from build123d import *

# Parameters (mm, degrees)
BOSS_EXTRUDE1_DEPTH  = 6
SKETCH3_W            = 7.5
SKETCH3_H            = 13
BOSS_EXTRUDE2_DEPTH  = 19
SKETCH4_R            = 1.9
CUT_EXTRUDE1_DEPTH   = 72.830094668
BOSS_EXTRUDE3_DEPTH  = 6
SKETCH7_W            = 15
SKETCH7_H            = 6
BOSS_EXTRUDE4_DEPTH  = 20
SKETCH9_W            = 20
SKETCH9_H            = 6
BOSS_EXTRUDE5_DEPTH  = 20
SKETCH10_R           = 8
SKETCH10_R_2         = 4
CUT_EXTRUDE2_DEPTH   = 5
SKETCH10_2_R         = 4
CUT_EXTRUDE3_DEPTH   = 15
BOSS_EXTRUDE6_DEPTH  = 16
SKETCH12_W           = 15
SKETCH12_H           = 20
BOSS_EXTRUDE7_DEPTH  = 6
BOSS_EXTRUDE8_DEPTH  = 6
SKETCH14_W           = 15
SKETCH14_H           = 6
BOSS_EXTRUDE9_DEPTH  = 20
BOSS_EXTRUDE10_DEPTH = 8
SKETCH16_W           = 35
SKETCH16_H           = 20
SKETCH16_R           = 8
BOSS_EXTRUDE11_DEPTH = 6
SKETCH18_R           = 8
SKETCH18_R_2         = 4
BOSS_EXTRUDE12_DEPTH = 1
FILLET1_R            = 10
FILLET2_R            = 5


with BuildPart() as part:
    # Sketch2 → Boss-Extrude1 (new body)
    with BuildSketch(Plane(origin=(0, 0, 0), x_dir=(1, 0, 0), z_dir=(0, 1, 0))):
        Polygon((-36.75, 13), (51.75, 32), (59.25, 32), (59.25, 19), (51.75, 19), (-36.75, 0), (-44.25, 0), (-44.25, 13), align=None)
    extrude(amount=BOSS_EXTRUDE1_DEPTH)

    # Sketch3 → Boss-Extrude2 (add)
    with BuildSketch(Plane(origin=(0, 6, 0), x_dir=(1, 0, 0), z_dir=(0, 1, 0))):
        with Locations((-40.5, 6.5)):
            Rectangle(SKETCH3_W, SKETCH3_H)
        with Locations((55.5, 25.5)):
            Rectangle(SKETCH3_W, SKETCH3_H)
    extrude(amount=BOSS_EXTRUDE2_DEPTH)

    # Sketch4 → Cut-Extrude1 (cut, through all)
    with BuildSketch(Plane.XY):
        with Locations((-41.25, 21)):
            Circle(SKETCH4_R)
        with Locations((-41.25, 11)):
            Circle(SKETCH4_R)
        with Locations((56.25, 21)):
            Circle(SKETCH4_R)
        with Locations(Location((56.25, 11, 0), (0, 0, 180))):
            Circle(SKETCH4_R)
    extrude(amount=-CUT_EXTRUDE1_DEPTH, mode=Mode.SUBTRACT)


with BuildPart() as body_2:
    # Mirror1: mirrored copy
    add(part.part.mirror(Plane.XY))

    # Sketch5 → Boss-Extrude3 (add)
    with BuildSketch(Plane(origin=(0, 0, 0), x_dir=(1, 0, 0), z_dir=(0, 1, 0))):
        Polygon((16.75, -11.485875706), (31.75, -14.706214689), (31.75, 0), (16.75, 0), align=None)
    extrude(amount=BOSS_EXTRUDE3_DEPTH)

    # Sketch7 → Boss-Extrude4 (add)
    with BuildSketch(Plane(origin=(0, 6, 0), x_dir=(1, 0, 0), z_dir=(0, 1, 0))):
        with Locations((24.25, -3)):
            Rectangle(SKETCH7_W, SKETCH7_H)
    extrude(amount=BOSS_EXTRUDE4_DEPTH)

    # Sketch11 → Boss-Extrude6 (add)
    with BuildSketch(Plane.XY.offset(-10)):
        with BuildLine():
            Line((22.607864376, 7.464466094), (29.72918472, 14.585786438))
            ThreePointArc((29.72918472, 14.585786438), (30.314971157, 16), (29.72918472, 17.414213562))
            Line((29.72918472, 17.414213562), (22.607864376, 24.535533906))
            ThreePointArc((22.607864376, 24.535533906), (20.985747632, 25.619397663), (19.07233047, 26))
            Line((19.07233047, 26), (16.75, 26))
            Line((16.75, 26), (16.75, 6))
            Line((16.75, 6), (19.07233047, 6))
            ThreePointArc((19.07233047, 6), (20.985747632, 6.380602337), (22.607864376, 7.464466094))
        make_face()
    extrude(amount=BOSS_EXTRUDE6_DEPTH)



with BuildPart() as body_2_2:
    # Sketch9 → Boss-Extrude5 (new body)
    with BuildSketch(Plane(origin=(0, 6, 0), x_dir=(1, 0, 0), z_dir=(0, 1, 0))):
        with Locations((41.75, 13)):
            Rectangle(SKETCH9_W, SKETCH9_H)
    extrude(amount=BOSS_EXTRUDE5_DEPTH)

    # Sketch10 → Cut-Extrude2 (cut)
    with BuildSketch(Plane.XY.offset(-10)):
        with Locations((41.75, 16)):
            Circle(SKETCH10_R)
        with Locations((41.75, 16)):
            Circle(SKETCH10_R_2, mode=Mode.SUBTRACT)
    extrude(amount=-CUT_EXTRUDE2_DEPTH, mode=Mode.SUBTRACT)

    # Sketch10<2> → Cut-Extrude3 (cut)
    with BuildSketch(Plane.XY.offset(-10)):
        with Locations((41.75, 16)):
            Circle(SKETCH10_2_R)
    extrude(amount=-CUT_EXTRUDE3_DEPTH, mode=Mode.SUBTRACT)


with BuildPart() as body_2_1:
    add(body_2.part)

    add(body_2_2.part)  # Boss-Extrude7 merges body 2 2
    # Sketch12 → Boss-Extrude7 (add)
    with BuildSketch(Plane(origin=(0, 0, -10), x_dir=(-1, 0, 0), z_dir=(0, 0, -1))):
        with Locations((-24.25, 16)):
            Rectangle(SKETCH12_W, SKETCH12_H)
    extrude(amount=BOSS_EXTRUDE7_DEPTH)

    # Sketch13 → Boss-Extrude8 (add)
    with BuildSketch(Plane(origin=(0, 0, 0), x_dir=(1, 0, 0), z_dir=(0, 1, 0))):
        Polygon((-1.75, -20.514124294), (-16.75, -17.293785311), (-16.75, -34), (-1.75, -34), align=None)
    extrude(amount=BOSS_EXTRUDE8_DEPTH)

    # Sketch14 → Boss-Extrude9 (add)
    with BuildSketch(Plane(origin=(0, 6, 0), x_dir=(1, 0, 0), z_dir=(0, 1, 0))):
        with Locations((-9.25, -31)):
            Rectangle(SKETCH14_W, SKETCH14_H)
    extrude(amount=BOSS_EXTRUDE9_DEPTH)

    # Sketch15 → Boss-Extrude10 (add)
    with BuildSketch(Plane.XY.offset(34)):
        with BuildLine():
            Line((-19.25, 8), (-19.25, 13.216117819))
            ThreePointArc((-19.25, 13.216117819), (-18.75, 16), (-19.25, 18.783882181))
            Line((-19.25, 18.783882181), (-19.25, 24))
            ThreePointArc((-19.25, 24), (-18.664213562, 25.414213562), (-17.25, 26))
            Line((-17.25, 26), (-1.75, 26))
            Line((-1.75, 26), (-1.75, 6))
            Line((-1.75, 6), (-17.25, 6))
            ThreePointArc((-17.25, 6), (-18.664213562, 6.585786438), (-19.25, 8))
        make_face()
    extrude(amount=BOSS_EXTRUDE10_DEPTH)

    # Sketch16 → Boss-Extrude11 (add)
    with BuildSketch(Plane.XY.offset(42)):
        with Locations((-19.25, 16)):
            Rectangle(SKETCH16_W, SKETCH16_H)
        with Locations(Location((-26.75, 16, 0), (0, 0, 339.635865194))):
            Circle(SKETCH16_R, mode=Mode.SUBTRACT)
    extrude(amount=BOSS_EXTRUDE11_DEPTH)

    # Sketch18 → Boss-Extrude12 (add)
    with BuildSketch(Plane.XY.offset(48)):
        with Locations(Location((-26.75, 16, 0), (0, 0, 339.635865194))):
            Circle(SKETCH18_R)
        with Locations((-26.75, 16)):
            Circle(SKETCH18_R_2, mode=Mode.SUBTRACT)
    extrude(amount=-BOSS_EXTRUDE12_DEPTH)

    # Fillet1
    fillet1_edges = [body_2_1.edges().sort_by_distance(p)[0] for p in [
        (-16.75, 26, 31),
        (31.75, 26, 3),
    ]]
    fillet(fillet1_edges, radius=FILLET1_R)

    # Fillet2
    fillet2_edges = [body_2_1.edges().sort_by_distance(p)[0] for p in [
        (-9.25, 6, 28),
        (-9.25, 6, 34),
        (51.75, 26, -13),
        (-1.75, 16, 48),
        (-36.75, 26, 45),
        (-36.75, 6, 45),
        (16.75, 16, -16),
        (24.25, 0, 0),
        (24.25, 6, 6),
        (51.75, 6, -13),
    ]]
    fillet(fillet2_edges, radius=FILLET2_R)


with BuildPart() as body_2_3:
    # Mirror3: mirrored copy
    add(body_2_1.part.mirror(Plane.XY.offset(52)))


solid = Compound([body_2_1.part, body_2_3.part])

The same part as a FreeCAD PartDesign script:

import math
import FreeCAD as App
import Part
import Sketcher
Q = App.Units.Quantity


def edges_at(feature, points):
    """Names of the edges that pass closest to the given points."""
    edges = feature.Shape.Edges
    near = lambda p: min(range(len(edges)), key=lambda i: edges[i].distToShape(Part.Vertex(*p))[0])
    return sorted({f"Edge{near(p) + 1}" for p in points})

doc = App.newDocument("Part")
body = doc.addObject("PartDesign::Body", "Body")

# Sketch on XZ plane
sketch1 = body.newObject("Sketcher::SketchObject", "Sketch")
sketch1.AttachmentSupport = (doc.getObject("XZ_Plane"), [""])
sketch1.MapMode = "FlatFace"
sketch1.addGeometry(Part.LineSegment(App.Vector(52, -32, 0), App.Vector(-37, -13, 0)), False)
sketch1.addGeometry(Part.LineSegment(App.Vector(-37, -13, 0), App.Vector(-44, -13, 0)), False)
sketch1.addGeometry(Part.LineSegment(App.Vector(-44, -13, 0), App.Vector(-44, 0, 0)), False)
sketch1.addGeometry(Part.LineSegment(App.Vector(-44, 0, 0), App.Vector(-37, 0, 0)), False)
sketch1.addGeometry(Part.LineSegment(App.Vector(-37, 0, 0), App.Vector(52, -19, 0)), False)
sketch1.addGeometry(Part.LineSegment(App.Vector(52, -19, 0), App.Vector(59, -19, 0)), False)
sketch1.addGeometry(Part.LineSegment(App.Vector(59, -19, 0), App.Vector(59, -32, 0)), False)
sketch1.addGeometry(Part.LineSegment(App.Vector(59, -32, 0), App.Vector(52, -32, 0)), False)
sketch1.addConstraint(Sketcher.Constraint("Coincident", 0, 2, 1, 1))
sketch1.addConstraint(Sketcher.Constraint("Coincident", 1, 2, 2, 1))
sketch1.addConstraint(Sketcher.Constraint("Coincident", 2, 2, 3, 1))
sketch1.addConstraint(Sketcher.Constraint("Coincident", 3, 2, 4, 1))
sketch1.addConstraint(Sketcher.Constraint("Coincident", 4, 2, 5, 1))
sketch1.addConstraint(Sketcher.Constraint("Coincident", 5, 2, 6, 1))
sketch1.addConstraint(Sketcher.Constraint("Coincident", 6, 2, 7, 1))
sketch1.addConstraint(Sketcher.Constraint("Coincident", 7, 2, 0, 1))
sketch1.addConstraint(Sketcher.Constraint("Horizontal", 1))
sketch1.addConstraint(Sketcher.Constraint("Vertical", 2))
sketch1.addConstraint(Sketcher.Constraint("Horizontal", 3))
sketch1.addConstraint(Sketcher.Constraint("Horizontal", 5))
sketch1.addConstraint(Sketcher.Constraint("Vertical", 6))
sketch1.addConstraint(Sketcher.Constraint("Horizontal", 7))
sketch1.addConstraint(Sketcher.Constraint("PointOnObject", 2, 2, -1))
sketch1.addConstraint(Sketcher.Constraint("Parallel", 0, 4))
sketch1.addConstraint(Sketcher.Constraint("Vertical", 0, 2, 3, 2))
sketch1.addConstraint(Sketcher.Constraint("Vertical", 4, 2, 7, 2))
sketch1.addConstraint(Sketcher.Constraint("Equal", 3, 5))
sketch1.addConstraint(Sketcher.Constraint("DistanceY", 2, 1, 2, 2, Q("13 mm")))
sketch1.addConstraint(Sketcher.Constraint("DistanceX", 1, 2, 1, 1, Q("7.5 mm")))
sketch1.addConstraint(Sketcher.Constraint("DistanceY", 4, 2, -1, 1, Q("19 mm")))
sketch1.addConstraint(Sketcher.Constraint("DistanceX", 1, 2, 4, 2, Q("96 mm")))
sketch1.addConstraint(Sketcher.Constraint("DistanceX", 0, 2, -1, 1, Q("36.75 mm")))
pad1 = body.newObject("PartDesign::Pad", "Pad")
pad1.Profile = sketch1
pad1.Length = 6
pad1.Reversed = True

# Sketch on XZ plane
sketch2 = body.newObject("Sketcher::SketchObject", "Sketch001")
sketch2.AttachmentSupport = (doc.getObject("XZ_Plane"), [""])
sketch2.MapMode = "FlatFace"
sketch2.AttachmentOffset = App.Placement(App.Vector(0, 0, -6), App.Rotation())
sketch2.addGeometry(Part.LineSegment(App.Vector(-44, -13, 0), App.Vector(-44, 0, 0)), False)
sketch2.addGeometry(Part.LineSegment(App.Vector(-44, 0, 0), App.Vector(-37, 0, 0)), False)
sketch2.addGeometry(Part.LineSegment(App.Vector(-37, 0, 0), App.Vector(-37, -13, 0)), False)
sketch2.addGeometry(Part.LineSegment(App.Vector(-37, -13, 0), App.Vector(-44, -13, 0)), False)
sketch2.addGeometry(Part.LineSegment(App.Vector(52, -32, 0), App.Vector(52, -19, 0)), False)
sketch2.addGeometry(Part.LineSegment(App.Vector(52, -19, 0), App.Vector(59, -19, 0)), False)
sketch2.addGeometry(Part.LineSegment(App.Vector(59, -19, 0), App.Vector(59, -32, 0)), False)
sketch2.addGeometry(Part.LineSegment(App.Vector(59, -32, 0), App.Vector(52, -32, 0)), False)
sketch2.addConstraint(Sketcher.Constraint("Coincident", 0, 2, 1, 1))
sketch2.addConstraint(Sketcher.Constraint("Coincident", 1, 2, 2, 1))
sketch2.addConstraint(Sketcher.Constraint("Coincident", 2, 2, 3, 1))
sketch2.addConstraint(Sketcher.Constraint("Coincident", 3, 2, 0, 1))
sketch2.addConstraint(Sketcher.Constraint("Coincident", 4, 2, 5, 1))
sketch2.addConstraint(Sketcher.Constraint("Coincident", 5, 2, 6, 1))
sketch2.addConstraint(Sketcher.Constraint("Coincident", 6, 2, 7, 1))
sketch2.addConstraint(Sketcher.Constraint("Coincident", 7, 2, 4, 1))
sketch2.addConstraint(Sketcher.Constraint("Vertical", 0))
sketch2.addConstraint(Sketcher.Constraint("Horizontal", 1))
sketch2.addConstraint(Sketcher.Constraint("Vertical", 2))
sketch2.addConstraint(Sketcher.Constraint("Horizontal", 3))
sketch2.addConstraint(Sketcher.Constraint("Vertical", 4))
sketch2.addConstraint(Sketcher.Constraint("Horizontal", 5))
sketch2.addConstraint(Sketcher.Constraint("Vertical", 6))
sketch2.addConstraint(Sketcher.Constraint("Horizontal", 7))
sketch2.addConstraint(Sketcher.Constraint("PointOnObject", 0, 2, -1))
sketch2.addConstraint(Sketcher.Constraint("Equal", 3, 5))
sketch2.addConstraint(Sketcher.Constraint("Equal", 2, 4))
sketch2.addConstraint(Sketcher.Constraint("DistanceY", 0, 1, 0, 2, Q("13 mm")))
sketch2.addConstraint(Sketcher.Constraint("DistanceX", 1, 1, 1, 2, Q("7.5 mm")))
sketch2.addConstraint(Sketcher.Constraint("DistanceY", 4, 2, -1, 1, Q("19 mm")))
sketch2.addConstraint(Sketcher.Constraint("DistanceX", 3, 2, 4, 2, Q("96 mm")))
sketch2.addConstraint(Sketcher.Constraint("DistanceX", 0, 2, -1, 1, Q("44.25 mm")))
pad2 = body.newObject("PartDesign::Pad", "Pad001")
pad2.Profile = sketch2
pad2.Length = 19
pad2.Reversed = True

# Sketch on XY plane
sketch3 = body.newObject("Sketcher::SketchObject", "Sketch002")
sketch3.AttachmentSupport = (doc.getObject("XY_Plane"), [""])
sketch3.MapMode = "FlatFace"
sketch3.addGeometry(Part.Circle(App.Vector(-41.2, 21, 0), App.Vector(0, 0, 1), 1.9), False)
sketch3.addGeometry(Part.Circle(App.Vector(-41.2, 11, 0), App.Vector(0, 0, 1), 1.9), False)
sketch3.addGeometry(Part.Circle(App.Vector(56.2, 21, 0), App.Vector(0, 0, 1), 1.9), False)
sketch3.addGeometry(Part.Circle(App.Vector(56.2, 11, 0), App.Vector(0, 0, 1), 1.9), False)
sketch3.addConstraint(Sketcher.Constraint("Equal", 0, 1))
sketch3.addConstraint(Sketcher.Constraint("Equal", 1, 2))
sketch3.addConstraint(Sketcher.Constraint("Equal", 2, 3))
sketch3.addConstraint(Sketcher.Constraint("Horizontal", 0, 3, 2, 3))
sketch3.addConstraint(Sketcher.Constraint("Horizontal", 1, 3, 3, 3))
sketch3.addConstraint(Sketcher.Constraint("Vertical", 0, 3, 1, 3))
sketch3.addConstraint(Sketcher.Constraint("Vertical", 2, 3, 3, 3))
sketch3.addConstraint(Sketcher.Constraint("Diameter", 0, Q("3.8 mm")))
sketch3.addConstraint(Sketcher.Constraint("DistanceY", -1, 1, 0, 3, Q("21 mm")))
sketch3.addConstraint(Sketcher.Constraint("DistanceY", -1, 1, 1, 3, Q("11 mm")))
sketch3.addConstraint(Sketcher.Constraint("DistanceX", 0, 3, 2, 3, Q("97.5 mm")))
sketch3.addConstraint(Sketcher.Constraint("DistanceX", 0, 3, -1, 1, Q("41.25 mm")))
pocket1 = body.newObject("PartDesign::Pocket", "Pocket")
pocket1.Profile = sketch3
pocket1.Type = "ThroughAll"
body2 = doc.addObject("PartDesign::Body", "Body001")
doc.recompute()

mirroring = doc.addObject("Part::Mirroring", "Mirroring")
mirroring.Source = body
mirroring.Base = App.Vector(0, 0, 0)
mirroring.Normal = App.Vector(0, 0, 1)
body2.BaseFeature = mirroring
doc.recompute()

# Sketch on XZ plane
sketch4 = body2.newObject("Sketcher::SketchObject", "Sketch003")
sketch4.AttachmentSupport = (doc.getObject("XZ_Plane001"), [""])
sketch4.MapMode = "FlatFace"
sketch4.addGeometry(Part.LineSegment(App.Vector(17, 11, 0), App.Vector(32, 15, 0)), False)
sketch4.addGeometry(Part.LineSegment(App.Vector(32, 15, 0), App.Vector(32, 0, 0)), False)
sketch4.addGeometry(Part.LineSegment(App.Vector(32, 0, 0), App.Vector(17, 0, 0)), False)
sketch4.addGeometry(Part.LineSegment(App.Vector(17, 0, 0), App.Vector(17, 11, 0)), False)
sketch4.addConstraint(Sketcher.Constraint("Coincident", 0, 2, 1, 1))
sketch4.addConstraint(Sketcher.Constraint("Coincident", 1, 2, 2, 1))
sketch4.addConstraint(Sketcher.Constraint("Coincident", 2, 2, 3, 1))
sketch4.addConstraint(Sketcher.Constraint("Coincident", 3, 2, 0, 1))
sketch4.addConstraint(Sketcher.Constraint("Vertical", 1))
sketch4.addConstraint(Sketcher.Constraint("Horizontal", 2))
sketch4.addConstraint(Sketcher.Constraint("Vertical", 3))
sketch4.addConstraint(Sketcher.Constraint("PointOnObject", 1, 2, -1))
sketch4.addConstraint(Sketcher.Constraint("DistanceX", 2, 2, 2, 1, Q("15 mm")))
sketch4.addConstraint(Sketcher.Constraint("DistanceX", -1, 1, 0, 2, Q("31.75 mm")))
sketch4.addConstraint(Sketcher.Constraint("DistanceY", 1, 2, 1, 1, Q("14.706215 mm")))
sketch4.addConstraint(Sketcher.Constraint("DistanceY", 3, 1, 3, 2, Q("11.485876 mm")))
pad3 = body2.newObject("PartDesign::Pad", "Pad002")
pad3.Profile = sketch4
pad3.Length = 6
pad3.Reversed = True

# Sketch on XZ plane
sketch5 = body2.newObject("Sketcher::SketchObject", "Sketch004")
sketch5.AttachmentSupport = (doc.getObject("XZ_Plane001"), [""])
sketch5.MapMode = "FlatFace"
sketch5.AttachmentOffset = App.Placement(App.Vector(0, 0, -6), App.Rotation())
sketch5.addGeometry(Part.LineSegment(App.Vector(17, 0, 0), App.Vector(17, 6, 0)), False)
sketch5.addGeometry(Part.LineSegment(App.Vector(17, 6, 0), App.Vector(32, 6, 0)), False)
sketch5.addGeometry(Part.LineSegment(App.Vector(32, 6, 0), App.Vector(32, 0, 0)), False)
sketch5.addGeometry(Part.LineSegment(App.Vector(32, 0, 0), App.Vector(17, 0, 0)), False)
sketch5.addConstraint(Sketcher.Constraint("Coincident", 0, 2, 1, 1))
sketch5.addConstraint(Sketcher.Constraint("Coincident", 1, 2, 2, 1))
sketch5.addConstraint(Sketcher.Constraint("Coincident", 2, 2, 3, 1))
sketch5.addConstraint(Sketcher.Constraint("Coincident", 3, 2, 0, 1))
sketch5.addConstraint(Sketcher.Constraint("Vertical", 0))
sketch5.addConstraint(Sketcher.Constraint("Horizontal", 1))
sketch5.addConstraint(Sketcher.Constraint("Vertical", 2))
sketch5.addConstraint(Sketcher.Constraint("Horizontal", 3))
sketch5.addConstraint(Sketcher.Constraint("PointOnObject", 2, 2, -1))
sketch5.addConstraint(Sketcher.Constraint("DistanceX", 1, 1, 1, 2, Q("15 mm")))
sketch5.addConstraint(Sketcher.Constraint("DistanceY", 0, 1, 0, 2, Q("6 mm")))
sketch5.addConstraint(Sketcher.Constraint("DistanceX", -1, 1, 0, 2, Q("16.75 mm")))
pad4 = body2.newObject("PartDesign::Pad", "Pad003")
pad4.Profile = sketch5
pad4.Length = 20
pad4.Reversed = True

# Sketch on XY plane
sketch6 = body2.newObject("Sketcher::SketchObject", "Sketch005")
sketch6.AttachmentSupport = (doc.getObject("XY_Plane001"), [""])
sketch6.MapMode = "FlatFace"
sketch6.AttachmentOffset = App.Placement(App.Vector(0, 0, -10), App.Rotation())
sketch6.addGeometry(Part.LineSegment(App.Vector(22.6, 7.5, 0), App.Vector(29.7, 14.6, 0)), False)
sketch6.addGeometry(Part.ArcOfCircle(Part.Circle(App.Vector(28.3, 16, 0), App.Vector(0, 0, 1), 2), math.radians(-45), math.radians(45)), False)
sketch6.addGeometry(Part.LineSegment(App.Vector(29.7, 17.4, 0), App.Vector(22.6, 24.5, 0)), False)
sketch6.addGeometry(Part.ArcOfCircle(Part.Circle(App.Vector(19.1, 21, 0), App.Vector(0, 0, 1), 5), math.radians(45), math.radians(90)), False)
sketch6.addGeometry(Part.LineSegment(App.Vector(19.1, 26, 0), App.Vector(16.8, 26, 0)), False)
sketch6.addGeometry(Part.LineSegment(App.Vector(16.8, 26, 0), App.Vector(16.8, 6, 0)), False)
sketch6.addGeometry(Part.LineSegment(App.Vector(16.8, 6, 0), App.Vector(19.1, 6, 0)), False)
sketch6.addGeometry(Part.ArcOfCircle(Part.Circle(App.Vector(19.1, 11, 0), App.Vector(0, 0, 1), 5), math.radians(-90), math.radians(-45)), False)
sketch6.addConstraint(Sketcher.Constraint("Tangent", 0, 2, 1, 1))
sketch6.addConstraint(Sketcher.Constraint("Tangent", 1, 2, 2, 1))
sketch6.addConstraint(Sketcher.Constraint("Tangent", 2, 2, 3, 1))
sketch6.addConstraint(Sketcher.Constraint("Tangent", 3, 2, 4, 1))
sketch6.addConstraint(Sketcher.Constraint("Coincident", 4, 2, 5, 1))
sketch6.addConstraint(Sketcher.Constraint("Coincident", 5, 2, 6, 1))
sketch6.addConstraint(Sketcher.Constraint("Tangent", 6, 2, 7, 1))
sketch6.addConstraint(Sketcher.Constraint("Tangent", 7, 2, 0, 1))
sketch6.addConstraint(Sketcher.Constraint("Horizontal", 4))
sketch6.addConstraint(Sketcher.Constraint("Vertical", 5))
sketch6.addConstraint(Sketcher.Constraint("Horizontal", 6))
sketch6.addConstraint(Sketcher.Constraint("Equal", 3, 7))
sketch6.addConstraint(Sketcher.Constraint("Perpendicular", 0, 2))
sketch6.addConstraint(Sketcher.Constraint("Vertical", 3, 3, 7, 3))
sketch6.addConstraint(Sketcher.Constraint("Vertical", 0, 2, 1, 2))
sketch6.addConstraint(Sketcher.Constraint("Radius", 1, Q("2 mm")))
sketch6.addConstraint(Sketcher.Constraint("Radius", 3, Q("5 mm")))
sketch6.addConstraint(Sketcher.Constraint("DistanceY", 5, 2, 5, 1, Q("20 mm")))
sketch6.addConstraint(Sketcher.Constraint("DistanceY", -1, 1, 1, 3, Q("16 mm")))
sketch6.addConstraint(Sketcher.Constraint("DistanceX", -1, 1, 4, 2, Q("16.75 mm")))
sketch6.addConstraint(Sketcher.Constraint("DistanceX", 4, 2, 4, 1, Q("2.32233 mm")))
pad5 = body2.newObject("PartDesign::Pad", "Pad004")
pad5.Profile = sketch6
pad5.Length = 16
body3 = doc.addObject("PartDesign::Body", "Body002")

# Sketch on XZ plane
sketch7 = body3.newObject("Sketcher::SketchObject", "Sketch006")
sketch7.AttachmentSupport = (doc.getObject("XZ_Plane002"), [""])
sketch7.MapMode = "FlatFace"
sketch7.AttachmentOffset = App.Placement(App.Vector(0, 0, -6), App.Rotation())
sketch7.addGeometry(Part.LineSegment(App.Vector(32, -16, 0), App.Vector(32, -10, 0)), False)
sketch7.addGeometry(Part.LineSegment(App.Vector(32, -10, 0), App.Vector(52, -10, 0)), False)
sketch7.addGeometry(Part.LineSegment(App.Vector(52, -10, 0), App.Vector(52, -16, 0)), False)
sketch7.addGeometry(Part.LineSegment(App.Vector(52, -16, 0), App.Vector(32, -16, 0)), False)
sketch7.addConstraint(Sketcher.Constraint("Coincident", 0, 2, 1, 1))
sketch7.addConstraint(Sketcher.Constraint("Coincident", 1, 2, 2, 1))
sketch7.addConstraint(Sketcher.Constraint("Coincident", 2, 2, 3, 1))
sketch7.addConstraint(Sketcher.Constraint("Coincident", 3, 2, 0, 1))
sketch7.addConstraint(Sketcher.Constraint("Vertical", 0))
sketch7.addConstraint(Sketcher.Constraint("Horizontal", 1))
sketch7.addConstraint(Sketcher.Constraint("Vertical", 2))
sketch7.addConstraint(Sketcher.Constraint("Horizontal", 3))
sketch7.addConstraint(Sketcher.Constraint("DistanceX", 1, 1, 1, 2, Q("20 mm")))
sketch7.addConstraint(Sketcher.Constraint("DistanceY", 0, 1, 0, 2, Q("6 mm")))
sketch7.addConstraint(Sketcher.Constraint("DistanceY", 0, 2, -1, 1, Q("10 mm")))
sketch7.addConstraint(Sketcher.Constraint("DistanceX", -1, 1, 0, 2, Q("31.75 mm")))
pad6 = body3.newObject("PartDesign::Pad", "Pad005")
pad6.Profile = sketch7
pad6.Length = 20
pad6.Reversed = True

# Sketch on XY plane
sketch8 = body3.newObject("Sketcher::SketchObject", "Sketch007")
sketch8.AttachmentSupport = (doc.getObject("XY_Plane002"), [""])
sketch8.MapMode = "FlatFace"
sketch8.AttachmentOffset = App.Placement(App.Vector(0, 0, -10), App.Rotation())
sketch8.addGeometry(Part.Circle(App.Vector(41.8, 16, 0), App.Vector(0, 0, 1), 8), False)
sketch8.addGeometry(Part.Circle(App.Vector(41.8, 16, 0), App.Vector(0, 0, 1), 4), False)
sketch8.addConstraint(Sketcher.Constraint("Coincident", 1, 3, 0, 3))
sketch8.addConstraint(Sketcher.Constraint("Diameter", 0, Q("16 mm")))
sketch8.addConstraint(Sketcher.Constraint("Diameter", 1, Q("8 mm")))
sketch8.addConstraint(Sketcher.Constraint("DistanceY", -1, 1, 0, 3, Q("16 mm")))
sketch8.addConstraint(Sketcher.Constraint("DistanceX", -1, 1, 0, 3, Q("41.75 mm")))
pocket2 = body3.newObject("PartDesign::Pocket", "Pocket001")
pocket2.Profile = sketch8
pocket2.Length = 5

# Sketch on XY plane
sketch9 = body3.newObject("Sketcher::SketchObject", "Sketch008")
sketch9.AttachmentSupport = (doc.getObject("XY_Plane002"), [""])
sketch9.MapMode = "FlatFace"
sketch9.AttachmentOffset = App.Placement(App.Vector(0, 0, -10), App.Rotation())
sketch9.addGeometry(Part.Circle(App.Vector(41.8, 16, 0), App.Vector(0, 0, 1), 4), False)
sketch9.addConstraint(Sketcher.Constraint("Diameter", 0, Q("8 mm")))
sketch9.addConstraint(Sketcher.Constraint("DistanceY", -1, 1, 0, 3, Q("16 mm")))
sketch9.addConstraint(Sketcher.Constraint("DistanceX", -1, 1, 0, 3, Q("41.75 mm")))
pocket3 = body3.newObject("PartDesign::Pocket", "Pocket002")
pocket3.Profile = sketch9
pocket3.Length = 15
body2.AllowCompound = True
doc.recompute()

boolean = body2.newObject("PartDesign::Boolean", "Boolean")
boolean.Type = "Fuse"
boolean.addObjects([body3])

# Sketch on XY plane
sketch10 = body2.newObject("Sketcher::SketchObject", "Sketch009")
sketch10.AttachmentSupport = (doc.getObject("XY_Plane001"), [""])
sketch10.MapMode = "FlatFace"
sketch10.AttachmentOffset = App.Placement(App.Vector(0, 0, -10), App.Rotation())
sketch10.addGeometry(Part.LineSegment(App.Vector(32, 26, 0), App.Vector(32, 6, 0)), False)
sketch10.addGeometry(Part.LineSegment(App.Vector(32, 6, 0), App.Vector(17, 6, 0)), False)
sketch10.addGeometry(Part.LineSegment(App.Vector(17, 6, 0), App.Vector(17, 26, 0)), False)
sketch10.addGeometry(Part.LineSegment(App.Vector(17, 26, 0), App.Vector(32, 26, 0)), False)
sketch10.addConstraint(Sketcher.Constraint("Coincident", 0, 2, 1, 1))
sketch10.addConstraint(Sketcher.Constraint("Coincident", 1, 2, 2, 1))
sketch10.addConstraint(Sketcher.Constraint("Coincident", 2, 2, 3, 1))
sketch10.addConstraint(Sketcher.Constraint("Coincident", 3, 2, 0, 1))
sketch10.addConstraint(Sketcher.Constraint("Vertical", 0))
sketch10.addConstraint(Sketcher.Constraint("Horizontal", 1))
sketch10.addConstraint(Sketcher.Constraint("Vertical", 2))
sketch10.addConstraint(Sketcher.Constraint("Horizontal", 3))
sketch10.addConstraint(Sketcher.Constraint("DistanceX", 1, 2, 1, 1, Q("15 mm")))
sketch10.addConstraint(Sketcher.Constraint("DistanceY", 0, 2, 0, 1, Q("20 mm")))
sketch10.addConstraint(Sketcher.Constraint("DistanceY", -1, 1, 0, 2, Q("6 mm")))
sketch10.addConstraint(Sketcher.Constraint("DistanceX", -1, 1, 0, 2, Q("31.75 mm")))
pad7 = body2.newObject("PartDesign::Pad", "Pad006")
pad7.Profile = sketch10
pad7.Length = 6
pad7.Reversed = True

# Sketch on XZ plane
sketch11 = body2.newObject("Sketcher::SketchObject", "Sketch010")
sketch11.AttachmentSupport = (doc.getObject("XZ_Plane001"), [""])
sketch11.MapMode = "FlatFace"
sketch11.addGeometry(Part.LineSegment(App.Vector(-2, 21, 0), App.Vector(-17, 17, 0)), False)
sketch11.addGeometry(Part.LineSegment(App.Vector(-17, 17, 0), App.Vector(-17, 34, 0)), False)
sketch11.addGeometry(Part.LineSegment(App.Vector(-17, 34, 0), App.Vector(-2, 34, 0)), False)
sketch11.addGeometry(Part.LineSegment(App.Vector(-2, 34, 0), App.Vector(-2, 21, 0)), False)
sketch11.addConstraint(Sketcher.Constraint("Coincident", 0, 2, 1, 1))
sketch11.addConstraint(Sketcher.Constraint("Coincident", 1, 2, 2, 1))
sketch11.addConstraint(Sketcher.Constraint("Coincident", 2, 2, 3, 1))
sketch11.addConstraint(Sketcher.Constraint("Coincident", 3, 2, 0, 1))
sketch11.addConstraint(Sketcher.Constraint("Vertical", 1))
sketch11.addConstraint(Sketcher.Constraint("Horizontal", 2))
sketch11.addConstraint(Sketcher.Constraint("Vertical", 3))
sketch11.addConstraint(Sketcher.Constraint("DistanceX", 2, 1, 2, 2, Q("15 mm")))
sketch11.addConstraint(Sketcher.Constraint("DistanceY", -1, 1, 1, 2, Q("34 mm")))
sketch11.addConstraint(Sketcher.Constraint("DistanceX", 0, 2, -1, 1, Q("16.75 mm")))
sketch11.addConstraint(Sketcher.Constraint("DistanceY", 1, 1, 1, 2, Q("16.706215 mm")))
sketch11.addConstraint(Sketcher.Constraint("DistanceY", 3, 2, 3, 1, Q("13.485876 mm")))
pad8 = body2.newObject("PartDesign::Pad", "Pad007")
pad8.Profile = sketch11
pad8.Length = 6
pad8.Reversed = True

# Sketch on XZ plane
sketch12 = body2.newObject("Sketcher::SketchObject", "Sketch011")
sketch12.AttachmentSupport = (doc.getObject("XZ_Plane001"), [""])
sketch12.MapMode = "FlatFace"
sketch12.AttachmentOffset = App.Placement(App.Vector(0, 0, -6), App.Rotation())
sketch12.addGeometry(Part.LineSegment(App.Vector(-17, 28, 0), App.Vector(-17, 34, 0)), False)
sketch12.addGeometry(Part.LineSegment(App.Vector(-17, 34, 0), App.Vector(-2, 34, 0)), False)
sketch12.addGeometry(Part.LineSegment(App.Vector(-2, 34, 0), App.Vector(-2, 28, 0)), False)
sketch12.addGeometry(Part.LineSegment(App.Vector(-2, 28, 0), App.Vector(-17, 28, 0)), False)
sketch12.addConstraint(Sketcher.Constraint("Coincident", 0, 2, 1, 1))
sketch12.addConstraint(Sketcher.Constraint("Coincident", 1, 2, 2, 1))
sketch12.addConstraint(Sketcher.Constraint("Coincident", 2, 2, 3, 1))
sketch12.addConstraint(Sketcher.Constraint("Coincident", 3, 2, 0, 1))
sketch12.addConstraint(Sketcher.Constraint("Vertical", 0))
sketch12.addConstraint(Sketcher.Constraint("Horizontal", 1))
sketch12.addConstraint(Sketcher.Constraint("Vertical", 2))
sketch12.addConstraint(Sketcher.Constraint("Horizontal", 3))
sketch12.addConstraint(Sketcher.Constraint("DistanceX", 1, 1, 1, 2, Q("15 mm")))
sketch12.addConstraint(Sketcher.Constraint("DistanceY", 0, 1, 0, 2, Q("6 mm")))
sketch12.addConstraint(Sketcher.Constraint("DistanceY", -1, 1, 0, 2, Q("34 mm")))
sketch12.addConstraint(Sketcher.Constraint("DistanceX", 0, 2, -1, 1, Q("16.75 mm")))
pad9 = body2.newObject("PartDesign::Pad", "Pad008")
pad9.Profile = sketch12
pad9.Length = 20
pad9.Reversed = True

# Sketch on XY plane
sketch13 = body2.newObject("Sketcher::SketchObject", "Sketch012")
sketch13.AttachmentSupport = (doc.getObject("XY_Plane001"), [""])
sketch13.MapMode = "FlatFace"
sketch13.AttachmentOffset = App.Placement(App.Vector(0, 0, 34), App.Rotation())
sketch13.addGeometry(Part.LineSegment(App.Vector(-19.2, 13.2, 0), App.Vector(-19.2, 8, 0)), False)
sketch13.addGeometry(Part.ArcOfCircle(Part.Circle(App.Vector(-17.2, 8, 0), App.Vector(0, 0, 1), 2), math.radians(-180), math.radians(-90)), False)
sketch13.addGeometry(Part.LineSegment(App.Vector(-17.2, 6, 0), App.Vector(-1.8, 6, 0)), False)
sketch13.addGeometry(Part.LineSegment(App.Vector(-1.8, 6, 0), App.Vector(-1.8, 26, 0)), False)
sketch13.addGeometry(Part.LineSegment(App.Vector(-1.8, 26, 0), App.Vector(-17.2, 26, 0)), False)
sketch13.addGeometry(Part.ArcOfCircle(Part.Circle(App.Vector(-17.2, 24, 0), App.Vector(0, 0, 1), 2), math.radians(90), math.radians(180)), False)
sketch13.addGeometry(Part.LineSegment(App.Vector(-19.2, 24, 0), App.Vector(-19.2, 18.8, 0)), False)
sketch13.addGeometry(Part.ArcOfCircle(Part.Circle(App.Vector(-26.7, 16, 0), App.Vector(0, 0, 1), 8), math.radians(-20), math.radians(20)), False)
sketch13.addConstraint(Sketcher.Constraint("Tangent", 0, 2, 1, 1))
sketch13.addConstraint(Sketcher.Constraint("Tangent", 1, 2, 2, 1))
sketch13.addConstraint(Sketcher.Constraint("Coincident", 2, 2, 3, 1))
sketch13.addConstraint(Sketcher.Constraint("Coincident", 3, 2, 4, 1))
sketch13.addConstraint(Sketcher.Constraint("Tangent", 4, 2, 5, 1))
sketch13.addConstraint(Sketcher.Constraint("Tangent", 5, 2, 6, 1))
sketch13.addConstraint(Sketcher.Constraint("Coincident", 6, 2, 7, 2))
sketch13.addConstraint(Sketcher.Constraint("Coincident", 7, 1, 0, 1))
sketch13.addConstraint(Sketcher.Constraint("Vertical", 0))
sketch13.addConstraint(Sketcher.Constraint("Horizontal", 2))
sketch13.addConstraint(Sketcher.Constraint("Vertical", 3))
sketch13.addConstraint(Sketcher.Constraint("Horizontal", 4))
sketch13.addConstraint(Sketcher.Constraint("Vertical", 6))
sketch13.addConstraint(Sketcher.Constraint("Equal", 1, 5))
sketch13.addConstraint(Sketcher.Constraint("Vertical", 1, 3, 5, 3))
sketch13.addConstraint(Sketcher.Constraint("Equal", 0, 6))
sketch13.addConstraint(Sketcher.Constraint("Radius", 1, Q("2 mm")))
sketch13.addConstraint(Sketcher.Constraint("Radius", 7, Q("8 mm")))
sketch13.addConstraint(Sketcher.Constraint("DistanceY", 3, 1, 3, 2, Q("20 mm")))
sketch13.addConstraint(Sketcher.Constraint("DistanceX", 2, 1, 2, 2, Q("15.5 mm")))
sketch13.addConstraint(Sketcher.Constraint("DistanceY", -1, 1, 1, 3, Q("8 mm")))
sketch13.addConstraint(Sketcher.Constraint("DistanceX", 7, 3, 2, 2, Q("25 mm")))
sketch13.addConstraint(Sketcher.Constraint("DistanceX", 1, 3, -1, 1, Q("17.25 mm")))
pad10 = body2.newObject("PartDesign::Pad", "Pad009")
pad10.Profile = sketch13
pad10.Length = 8

# Sketch on XY plane
sketch14 = body2.newObject("Sketcher::SketchObject", "Sketch013")
sketch14.AttachmentSupport = (doc.getObject("XY_Plane001"), [""])
sketch14.MapMode = "FlatFace"
sketch14.AttachmentOffset = App.Placement(App.Vector(0, 0, 42), App.Rotation())
sketch14.addGeometry(Part.LineSegment(App.Vector(-37, 26, 0), App.Vector(-37, 6, 0)), False)
sketch14.addGeometry(Part.LineSegment(App.Vector(-37, 6, 0), App.Vector(-2, 6, 0)), False)
sketch14.addGeometry(Part.LineSegment(App.Vector(-2, 6, 0), App.Vector(-2, 26, 0)), False)
sketch14.addGeometry(Part.LineSegment(App.Vector(-2, 26, 0), App.Vector(-37, 26, 0)), False)
sketch14.addGeometry(Part.Circle(App.Vector(-27, 16, 0), App.Vector(0, 0, 1), 8), False)
sketch14.addConstraint(Sketcher.Constraint("Coincident", 0, 2, 1, 1))
sketch14.addConstraint(Sketcher.Constraint("Coincident", 1, 2, 2, 1))
sketch14.addConstraint(Sketcher.Constraint("Coincident", 2, 2, 3, 1))
sketch14.addConstraint(Sketcher.Constraint("Coincident", 3, 2, 0, 1))
sketch14.addConstraint(Sketcher.Constraint("Vertical", 0))
sketch14.addConstraint(Sketcher.Constraint("Horizontal", 1))
sketch14.addConstraint(Sketcher.Constraint("Vertical", 2))
sketch14.addConstraint(Sketcher.Constraint("Horizontal", 3))
sketch14.addConstraint(Sketcher.Constraint("Diameter", 4, Q("16 mm")))
sketch14.addConstraint(Sketcher.Constraint("DistanceX", 1, 1, 1, 2, Q("35 mm")))
sketch14.addConstraint(Sketcher.Constraint("DistanceY", 0, 2, 0, 1, Q("20 mm")))
sketch14.addConstraint(Sketcher.Constraint("DistanceY", -1, 1, 4, 3, Q("16 mm")))
sketch14.addConstraint(Sketcher.Constraint("DistanceY", -1, 1, 0, 2, Q("6 mm")))
sketch14.addConstraint(Sketcher.Constraint("DistanceX", 0, 2, 4, 3, Q("10 mm")))
sketch14.addConstraint(Sketcher.Constraint("DistanceX", 4, 3, -1, 1, Q("26.75 mm")))
pad11 = body2.newObject("PartDesign::Pad", "Pad010")
pad11.Profile = sketch14
pad11.Length = 6

# Sketch on XY plane
sketch15 = body2.newObject("Sketcher::SketchObject", "Sketch014")
sketch15.AttachmentSupport = (doc.getObject("XY_Plane001"), [""])
sketch15.MapMode = "FlatFace"
sketch15.AttachmentOffset = App.Placement(App.Vector(0, 0, 48), App.Rotation())
sketch15.addGeometry(Part.Circle(App.Vector(-26.8, 16, 0), App.Vector(0, 0, 1), 8), False)
sketch15.addGeometry(Part.Circle(App.Vector(-26.8, 16, 0), App.Vector(0, 0, 1), 4), False)
sketch15.addConstraint(Sketcher.Constraint("Coincident", 1, 3, 0, 3))
sketch15.addConstraint(Sketcher.Constraint("Diameter", 0, Q("16 mm")))
sketch15.addConstraint(Sketcher.Constraint("Diameter", 1, Q("8 mm")))
sketch15.addConstraint(Sketcher.Constraint("DistanceY", -1, 1, 0, 3, Q("16 mm")))
sketch15.addConstraint(Sketcher.Constraint("DistanceX", 0, 3, -1, 1, Q("26.75 mm")))
pad12 = body2.newObject("PartDesign::Pad", "Pad011")
pad12.Profile = sketch15
pad12.Length = 1
pad12.Reversed = True
doc.recompute()

fillet = body2.newObject("PartDesign::Fillet", "Fillet")
fillet.Base = (pad12, edges_at(pad12, [(-16.75, 26, 31), (31.75, 26, 3)]))
fillet.Radius = 10
doc.recompute()

fillet2 = body2.newObject("PartDesign::Fillet", "Fillet001")
fillet2.Base = (fillet, edges_at(fillet, [
    (-9.25, 6, 28),
    (-9.25, 6, 34),
    (51.75, 26, -13),
    (-1.75, 16, 48),
    (-36.75, 26, 45),
    (-36.75, 6, 45),
    (16.75, 16, -16),
    (24.25, 0, 0),
    (24.25, 6, 6),
    (51.75, 6, -13),
]))
fillet2.Radius = 5
body4 = doc.addObject("PartDesign::Body", "Body003")
doc.recompute()

mirroring2 = doc.addObject("Part::Mirroring", "Mirroring001")
mirroring2.Source = body2
mirroring2.Base = App.Vector(0, 0, 52)
mirroring2.Normal = App.Vector(0, 0, 1)
body4.BaseFeature = mirroring2
doc.recompute()
body.Visibility = False
mirroring.Visibility = False
mirroring2.Visibility = False

doc.recompute()
